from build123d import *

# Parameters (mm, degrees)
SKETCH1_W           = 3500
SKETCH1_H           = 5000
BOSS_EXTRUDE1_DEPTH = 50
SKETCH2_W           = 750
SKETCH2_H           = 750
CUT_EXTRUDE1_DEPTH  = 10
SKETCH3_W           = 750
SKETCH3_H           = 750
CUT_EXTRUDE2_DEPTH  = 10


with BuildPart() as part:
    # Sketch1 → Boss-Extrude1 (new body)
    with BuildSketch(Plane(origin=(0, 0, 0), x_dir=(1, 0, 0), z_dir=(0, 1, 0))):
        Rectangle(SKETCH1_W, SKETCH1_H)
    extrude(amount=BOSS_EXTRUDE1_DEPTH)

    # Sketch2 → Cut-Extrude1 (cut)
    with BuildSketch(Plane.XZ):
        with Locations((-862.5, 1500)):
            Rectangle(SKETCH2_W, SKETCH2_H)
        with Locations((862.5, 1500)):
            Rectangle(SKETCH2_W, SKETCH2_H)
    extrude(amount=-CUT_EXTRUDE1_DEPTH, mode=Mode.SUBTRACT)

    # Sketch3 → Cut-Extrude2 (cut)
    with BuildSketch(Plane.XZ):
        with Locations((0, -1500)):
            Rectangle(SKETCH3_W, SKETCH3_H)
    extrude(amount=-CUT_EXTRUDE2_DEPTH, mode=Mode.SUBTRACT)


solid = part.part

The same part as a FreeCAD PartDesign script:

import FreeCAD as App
import Part
import Sketcher


def add_polygon(sketch, points):
    """Adds a closed chain of lines whose ends are joined by coincident constraints."""
    first, n = sketch.GeometryCount, len(points)
    for a, b in zip(points, points[1:] + points[:1]):
        sketch.addGeometry(Part.LineSegment(App.Vector(*a, 0), App.Vector(*b, 0)), False)
    for i in range(n):
        sketch.addConstraint(Sketcher.Constraint("Coincident", first + i, 2, first + (i + 1) % n, 1))

doc = App.newDocument("Part")
body = doc.addObject("PartDesign::Body", "Body")

sketch1 = body.newObject("Sketcher::SketchObject", "Sketch")
sketch1.AttachmentSupport = (doc.getObject("XZ_Plane"), [""])
sketch1.MapMode = "FlatFace"
add_polygon(sketch1, [(-1750, -2500), (-1750, 2500), (1750, 2500), (1750, -2500)])
sketch1.addConstraint(Sketcher.Constraint("Vertical", 0))
sketch1.addConstraint(Sketcher.Constraint("Horizontal", 1))
sketch1.addConstraint(Sketcher.Constraint("Vertical", 2))
sketch1.addConstraint(Sketcher.Constraint("Horizontal", 3))
sketch1.addConstraint(Sketcher.Constraint("Symmetric", 0, 2, 2, 2, -1, 1))
sketch1.addConstraint(Sketcher.Constraint("DistanceX", 1, 1, 1, 2, 3500.0))
sketch1.addConstraint(Sketcher.Constraint("DistanceY", 0, 1, 0, 2, 5000.0))
pad1 = body.newObject("PartDesign::Pad", "Pad")
pad1.Profile = sketch1
pad1.Length = 50
pad1.Reversed = True

sketch2 = body.newObject("Sketcher::SketchObject", "Sketch001")
sketch2.AttachmentSupport = (doc.getObject("XZ_Plane"), [""])
sketch2.MapMode = "FlatFace"
add_polygon(sketch2, [(-1238, 1875), (-1238, 1125), (-488, 1125), (-488, 1875)])
add_polygon(sketch2, [(488, 1875), (488, 1125), (1238, 1125), (1238, 1875)])
sketch2.addConstraint(Sketcher.Constraint("Vertical", 0))
sketch2.addConstraint(Sketcher.Constraint("Horizontal", 1))
sketch2.addConstraint(Sketcher.Constraint("Vertical", 2))
sketch2.addConstraint(Sketcher.Constraint("Horizontal", 3))
sketch2.addConstraint(Sketcher.Constraint("Vertical", 4))
sketch2.addConstraint(Sketcher.Constraint("Horizontal", 5))
sketch2.addConstraint(Sketcher.Constraint("Vertical", 6))
sketch2.addConstraint(Sketcher.Constraint("Horizontal", 7))
sketch2.addConstraint(Sketcher.Constraint("Symmetric", 1, 2, 4, 2, -2))
sketch2.addConstraint(Sketcher.Constraint("Symmetric", 3, 2, 6, 2, -2))
sketch2.addConstraint(Sketcher.Constraint("Equal", 7, 0))
sketch2.addConstraint(Sketcher.Constraint("DistanceX", 1, 1, 1, 2, 750.0))
sketch2.addConstraint(Sketcher.Constraint("DistanceY", -1, 1, 0, 2, 1125.0))
sketch2.addConstraint(Sketcher.Constraint("DistanceX", 1, 2, 4, 2, 975.0))
pocket1 = body.newObject("PartDesign::Pocket", "Pocket")
pocket1.Profile = sketch2
pocket1.Length = 10

sketch3 = body.newObject("Sketcher::SketchObject", "Sketch002")
sketch3.AttachmentSupport = (doc.getObject("XZ_Plane"), [""])
sketch3.MapMode = "FlatFace"
add_polygon(sketch3, [(-375, -1125), (-375, -1875), (375, -1875), (375, -1125)])
sketch3.addConstraint(Sketcher.Constraint("Vertical", 0))
sketch3.addConstraint(Sketcher.Constraint("Horizontal", 1))
sketch3.addConstraint(Sketcher.Constraint("Vertical", 2))
sketch3.addConstraint(Sketcher.Constraint("Horizontal", 3))
sketch3.addConstraint(Sketcher.Constraint("Equal", 3, 0))
sketch3.addConstraint(Sketcher.Constraint("DistanceX", 1, 1, 1, 2, 750.0))
sketch3.addConstraint(Sketcher.Constraint("DistanceX", 0, 2, -1, 1, 375.0))
sketch3.addConstraint(Sketcher.Constraint("DistanceY", 0, 2, -1, 1, 1875.0))
pocket2 = body.newObject("PartDesign::Pocket", "Pocket001")
pocket2.Profile = sketch3
pocket2.Length = 10

doc.recompute()
